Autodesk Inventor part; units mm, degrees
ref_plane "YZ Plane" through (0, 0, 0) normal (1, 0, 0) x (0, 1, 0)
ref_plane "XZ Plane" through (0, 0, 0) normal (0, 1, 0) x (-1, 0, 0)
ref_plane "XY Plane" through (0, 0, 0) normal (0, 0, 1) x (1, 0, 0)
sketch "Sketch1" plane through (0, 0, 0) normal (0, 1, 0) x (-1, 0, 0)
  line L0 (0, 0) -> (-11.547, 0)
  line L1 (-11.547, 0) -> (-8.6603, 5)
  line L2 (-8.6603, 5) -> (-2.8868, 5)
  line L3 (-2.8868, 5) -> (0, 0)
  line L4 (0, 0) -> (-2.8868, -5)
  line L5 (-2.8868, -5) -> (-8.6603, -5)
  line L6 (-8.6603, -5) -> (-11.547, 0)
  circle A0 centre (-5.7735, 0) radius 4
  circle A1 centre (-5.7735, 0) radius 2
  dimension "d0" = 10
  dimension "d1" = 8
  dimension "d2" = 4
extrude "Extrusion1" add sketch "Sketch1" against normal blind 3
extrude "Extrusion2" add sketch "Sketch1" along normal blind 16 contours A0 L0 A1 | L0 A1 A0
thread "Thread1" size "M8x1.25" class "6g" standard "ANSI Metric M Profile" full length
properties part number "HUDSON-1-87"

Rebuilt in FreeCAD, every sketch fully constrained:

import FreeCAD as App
import Part
import Sketcher
from FreeCAD import Vector
Q = App.Units.Quantity


def add_polygon(sketch, points):
    """Adds a closed chain of lines whose ends are joined by coincident constraints."""
    first, n = sketch.GeometryCount, len(points)
    for a, b in zip(points, points[1:] + points[:1]):
        sketch.addGeometry(Part.LineSegment(App.Vector(*a, 0), App.Vector(*b, 0)), False)
    for i in range(n):
        sketch.addConstraint(Sketcher.Constraint("Coincident", first + i, 2, first + (i + 1) % n, 1))

doc = App.newDocument("Part")
body = doc.addObject("PartDesign::Body", "Body")

sketch1 = body.newObject("Sketcher::SketchObject", "Sketch")
sketch1.AttachmentSupport = (doc.getObject("XZ_Plane"), [""])
sketch1.MapMode = "FlatFace"
add_polygon(sketch1, [(2.8868, -5), (0, 0), (2.8868, 5), (8.6603, 5), (11.547, 0), (8.6603, -5)])
sketch1.addConstraint([
    Sketcher.Constraint("Horizontal", 2),
    Sketcher.Constraint("Horizontal", 5),
    Sketcher.Constraint("Coincident", 0, 2, -1, 1),
    Sketcher.Constraint("Symmetric", 2, 2, 4, 2, -1),
    Sketcher.Constraint("PointOnObject", 3, 2, -1),
    Sketcher.Constraint("Parallel", 0, 3),
    Sketcher.Constraint("Parallel", 1, 4),
    Sketcher.Constraint("DistanceY", 4, 2, 2, 2, Q("10 mm")),
    Sketcher.Constraint("Angle", 0, Q("120.0004 deg")),
    Sketcher.Constraint("DistanceX", 2, 1, 2, 2, Q("5.7735 mm")),
])
pad1 = body.newObject("PartDesign::Pad", "Pad")
pad1.Profile = sketch1
pad1.Length = 3

sketch2 = body.newObject("Sketcher::SketchObject", "Sketch001")
sketch2.AttachmentSupport = (doc.getObject("XZ_Plane"), [""])
sketch2.MapMode = "FlatFace"
sketch2.addGeometry([
    Part.Circle(Vector(5.7735, 0, 0), Vector(0, 0, 1), 4),
    Part.Circle(Vector(5.7735, 0, 0), Vector(0, 0, 1), 2),
], False)
sketch2.addConstraint([
    Sketcher.Constraint("Coincident", 1, 3, 0, 3),
    Sketcher.Constraint("PointOnObject", 0, 3, -1),
    Sketcher.Constraint("Diameter", 0, Q("8 mm")),
    Sketcher.Constraint("Diameter", 1, Q("4 mm")),
    Sketcher.Constraint("DistanceX", -1, 1, 0, 3, Q("5.7735 mm")),
])
pad2 = body.newObject("PartDesign::Pad", "Pad001")
pad2.Profile = sketch2
pad2.Length = 16
pad2.Reversed = True

doc.recompute()
